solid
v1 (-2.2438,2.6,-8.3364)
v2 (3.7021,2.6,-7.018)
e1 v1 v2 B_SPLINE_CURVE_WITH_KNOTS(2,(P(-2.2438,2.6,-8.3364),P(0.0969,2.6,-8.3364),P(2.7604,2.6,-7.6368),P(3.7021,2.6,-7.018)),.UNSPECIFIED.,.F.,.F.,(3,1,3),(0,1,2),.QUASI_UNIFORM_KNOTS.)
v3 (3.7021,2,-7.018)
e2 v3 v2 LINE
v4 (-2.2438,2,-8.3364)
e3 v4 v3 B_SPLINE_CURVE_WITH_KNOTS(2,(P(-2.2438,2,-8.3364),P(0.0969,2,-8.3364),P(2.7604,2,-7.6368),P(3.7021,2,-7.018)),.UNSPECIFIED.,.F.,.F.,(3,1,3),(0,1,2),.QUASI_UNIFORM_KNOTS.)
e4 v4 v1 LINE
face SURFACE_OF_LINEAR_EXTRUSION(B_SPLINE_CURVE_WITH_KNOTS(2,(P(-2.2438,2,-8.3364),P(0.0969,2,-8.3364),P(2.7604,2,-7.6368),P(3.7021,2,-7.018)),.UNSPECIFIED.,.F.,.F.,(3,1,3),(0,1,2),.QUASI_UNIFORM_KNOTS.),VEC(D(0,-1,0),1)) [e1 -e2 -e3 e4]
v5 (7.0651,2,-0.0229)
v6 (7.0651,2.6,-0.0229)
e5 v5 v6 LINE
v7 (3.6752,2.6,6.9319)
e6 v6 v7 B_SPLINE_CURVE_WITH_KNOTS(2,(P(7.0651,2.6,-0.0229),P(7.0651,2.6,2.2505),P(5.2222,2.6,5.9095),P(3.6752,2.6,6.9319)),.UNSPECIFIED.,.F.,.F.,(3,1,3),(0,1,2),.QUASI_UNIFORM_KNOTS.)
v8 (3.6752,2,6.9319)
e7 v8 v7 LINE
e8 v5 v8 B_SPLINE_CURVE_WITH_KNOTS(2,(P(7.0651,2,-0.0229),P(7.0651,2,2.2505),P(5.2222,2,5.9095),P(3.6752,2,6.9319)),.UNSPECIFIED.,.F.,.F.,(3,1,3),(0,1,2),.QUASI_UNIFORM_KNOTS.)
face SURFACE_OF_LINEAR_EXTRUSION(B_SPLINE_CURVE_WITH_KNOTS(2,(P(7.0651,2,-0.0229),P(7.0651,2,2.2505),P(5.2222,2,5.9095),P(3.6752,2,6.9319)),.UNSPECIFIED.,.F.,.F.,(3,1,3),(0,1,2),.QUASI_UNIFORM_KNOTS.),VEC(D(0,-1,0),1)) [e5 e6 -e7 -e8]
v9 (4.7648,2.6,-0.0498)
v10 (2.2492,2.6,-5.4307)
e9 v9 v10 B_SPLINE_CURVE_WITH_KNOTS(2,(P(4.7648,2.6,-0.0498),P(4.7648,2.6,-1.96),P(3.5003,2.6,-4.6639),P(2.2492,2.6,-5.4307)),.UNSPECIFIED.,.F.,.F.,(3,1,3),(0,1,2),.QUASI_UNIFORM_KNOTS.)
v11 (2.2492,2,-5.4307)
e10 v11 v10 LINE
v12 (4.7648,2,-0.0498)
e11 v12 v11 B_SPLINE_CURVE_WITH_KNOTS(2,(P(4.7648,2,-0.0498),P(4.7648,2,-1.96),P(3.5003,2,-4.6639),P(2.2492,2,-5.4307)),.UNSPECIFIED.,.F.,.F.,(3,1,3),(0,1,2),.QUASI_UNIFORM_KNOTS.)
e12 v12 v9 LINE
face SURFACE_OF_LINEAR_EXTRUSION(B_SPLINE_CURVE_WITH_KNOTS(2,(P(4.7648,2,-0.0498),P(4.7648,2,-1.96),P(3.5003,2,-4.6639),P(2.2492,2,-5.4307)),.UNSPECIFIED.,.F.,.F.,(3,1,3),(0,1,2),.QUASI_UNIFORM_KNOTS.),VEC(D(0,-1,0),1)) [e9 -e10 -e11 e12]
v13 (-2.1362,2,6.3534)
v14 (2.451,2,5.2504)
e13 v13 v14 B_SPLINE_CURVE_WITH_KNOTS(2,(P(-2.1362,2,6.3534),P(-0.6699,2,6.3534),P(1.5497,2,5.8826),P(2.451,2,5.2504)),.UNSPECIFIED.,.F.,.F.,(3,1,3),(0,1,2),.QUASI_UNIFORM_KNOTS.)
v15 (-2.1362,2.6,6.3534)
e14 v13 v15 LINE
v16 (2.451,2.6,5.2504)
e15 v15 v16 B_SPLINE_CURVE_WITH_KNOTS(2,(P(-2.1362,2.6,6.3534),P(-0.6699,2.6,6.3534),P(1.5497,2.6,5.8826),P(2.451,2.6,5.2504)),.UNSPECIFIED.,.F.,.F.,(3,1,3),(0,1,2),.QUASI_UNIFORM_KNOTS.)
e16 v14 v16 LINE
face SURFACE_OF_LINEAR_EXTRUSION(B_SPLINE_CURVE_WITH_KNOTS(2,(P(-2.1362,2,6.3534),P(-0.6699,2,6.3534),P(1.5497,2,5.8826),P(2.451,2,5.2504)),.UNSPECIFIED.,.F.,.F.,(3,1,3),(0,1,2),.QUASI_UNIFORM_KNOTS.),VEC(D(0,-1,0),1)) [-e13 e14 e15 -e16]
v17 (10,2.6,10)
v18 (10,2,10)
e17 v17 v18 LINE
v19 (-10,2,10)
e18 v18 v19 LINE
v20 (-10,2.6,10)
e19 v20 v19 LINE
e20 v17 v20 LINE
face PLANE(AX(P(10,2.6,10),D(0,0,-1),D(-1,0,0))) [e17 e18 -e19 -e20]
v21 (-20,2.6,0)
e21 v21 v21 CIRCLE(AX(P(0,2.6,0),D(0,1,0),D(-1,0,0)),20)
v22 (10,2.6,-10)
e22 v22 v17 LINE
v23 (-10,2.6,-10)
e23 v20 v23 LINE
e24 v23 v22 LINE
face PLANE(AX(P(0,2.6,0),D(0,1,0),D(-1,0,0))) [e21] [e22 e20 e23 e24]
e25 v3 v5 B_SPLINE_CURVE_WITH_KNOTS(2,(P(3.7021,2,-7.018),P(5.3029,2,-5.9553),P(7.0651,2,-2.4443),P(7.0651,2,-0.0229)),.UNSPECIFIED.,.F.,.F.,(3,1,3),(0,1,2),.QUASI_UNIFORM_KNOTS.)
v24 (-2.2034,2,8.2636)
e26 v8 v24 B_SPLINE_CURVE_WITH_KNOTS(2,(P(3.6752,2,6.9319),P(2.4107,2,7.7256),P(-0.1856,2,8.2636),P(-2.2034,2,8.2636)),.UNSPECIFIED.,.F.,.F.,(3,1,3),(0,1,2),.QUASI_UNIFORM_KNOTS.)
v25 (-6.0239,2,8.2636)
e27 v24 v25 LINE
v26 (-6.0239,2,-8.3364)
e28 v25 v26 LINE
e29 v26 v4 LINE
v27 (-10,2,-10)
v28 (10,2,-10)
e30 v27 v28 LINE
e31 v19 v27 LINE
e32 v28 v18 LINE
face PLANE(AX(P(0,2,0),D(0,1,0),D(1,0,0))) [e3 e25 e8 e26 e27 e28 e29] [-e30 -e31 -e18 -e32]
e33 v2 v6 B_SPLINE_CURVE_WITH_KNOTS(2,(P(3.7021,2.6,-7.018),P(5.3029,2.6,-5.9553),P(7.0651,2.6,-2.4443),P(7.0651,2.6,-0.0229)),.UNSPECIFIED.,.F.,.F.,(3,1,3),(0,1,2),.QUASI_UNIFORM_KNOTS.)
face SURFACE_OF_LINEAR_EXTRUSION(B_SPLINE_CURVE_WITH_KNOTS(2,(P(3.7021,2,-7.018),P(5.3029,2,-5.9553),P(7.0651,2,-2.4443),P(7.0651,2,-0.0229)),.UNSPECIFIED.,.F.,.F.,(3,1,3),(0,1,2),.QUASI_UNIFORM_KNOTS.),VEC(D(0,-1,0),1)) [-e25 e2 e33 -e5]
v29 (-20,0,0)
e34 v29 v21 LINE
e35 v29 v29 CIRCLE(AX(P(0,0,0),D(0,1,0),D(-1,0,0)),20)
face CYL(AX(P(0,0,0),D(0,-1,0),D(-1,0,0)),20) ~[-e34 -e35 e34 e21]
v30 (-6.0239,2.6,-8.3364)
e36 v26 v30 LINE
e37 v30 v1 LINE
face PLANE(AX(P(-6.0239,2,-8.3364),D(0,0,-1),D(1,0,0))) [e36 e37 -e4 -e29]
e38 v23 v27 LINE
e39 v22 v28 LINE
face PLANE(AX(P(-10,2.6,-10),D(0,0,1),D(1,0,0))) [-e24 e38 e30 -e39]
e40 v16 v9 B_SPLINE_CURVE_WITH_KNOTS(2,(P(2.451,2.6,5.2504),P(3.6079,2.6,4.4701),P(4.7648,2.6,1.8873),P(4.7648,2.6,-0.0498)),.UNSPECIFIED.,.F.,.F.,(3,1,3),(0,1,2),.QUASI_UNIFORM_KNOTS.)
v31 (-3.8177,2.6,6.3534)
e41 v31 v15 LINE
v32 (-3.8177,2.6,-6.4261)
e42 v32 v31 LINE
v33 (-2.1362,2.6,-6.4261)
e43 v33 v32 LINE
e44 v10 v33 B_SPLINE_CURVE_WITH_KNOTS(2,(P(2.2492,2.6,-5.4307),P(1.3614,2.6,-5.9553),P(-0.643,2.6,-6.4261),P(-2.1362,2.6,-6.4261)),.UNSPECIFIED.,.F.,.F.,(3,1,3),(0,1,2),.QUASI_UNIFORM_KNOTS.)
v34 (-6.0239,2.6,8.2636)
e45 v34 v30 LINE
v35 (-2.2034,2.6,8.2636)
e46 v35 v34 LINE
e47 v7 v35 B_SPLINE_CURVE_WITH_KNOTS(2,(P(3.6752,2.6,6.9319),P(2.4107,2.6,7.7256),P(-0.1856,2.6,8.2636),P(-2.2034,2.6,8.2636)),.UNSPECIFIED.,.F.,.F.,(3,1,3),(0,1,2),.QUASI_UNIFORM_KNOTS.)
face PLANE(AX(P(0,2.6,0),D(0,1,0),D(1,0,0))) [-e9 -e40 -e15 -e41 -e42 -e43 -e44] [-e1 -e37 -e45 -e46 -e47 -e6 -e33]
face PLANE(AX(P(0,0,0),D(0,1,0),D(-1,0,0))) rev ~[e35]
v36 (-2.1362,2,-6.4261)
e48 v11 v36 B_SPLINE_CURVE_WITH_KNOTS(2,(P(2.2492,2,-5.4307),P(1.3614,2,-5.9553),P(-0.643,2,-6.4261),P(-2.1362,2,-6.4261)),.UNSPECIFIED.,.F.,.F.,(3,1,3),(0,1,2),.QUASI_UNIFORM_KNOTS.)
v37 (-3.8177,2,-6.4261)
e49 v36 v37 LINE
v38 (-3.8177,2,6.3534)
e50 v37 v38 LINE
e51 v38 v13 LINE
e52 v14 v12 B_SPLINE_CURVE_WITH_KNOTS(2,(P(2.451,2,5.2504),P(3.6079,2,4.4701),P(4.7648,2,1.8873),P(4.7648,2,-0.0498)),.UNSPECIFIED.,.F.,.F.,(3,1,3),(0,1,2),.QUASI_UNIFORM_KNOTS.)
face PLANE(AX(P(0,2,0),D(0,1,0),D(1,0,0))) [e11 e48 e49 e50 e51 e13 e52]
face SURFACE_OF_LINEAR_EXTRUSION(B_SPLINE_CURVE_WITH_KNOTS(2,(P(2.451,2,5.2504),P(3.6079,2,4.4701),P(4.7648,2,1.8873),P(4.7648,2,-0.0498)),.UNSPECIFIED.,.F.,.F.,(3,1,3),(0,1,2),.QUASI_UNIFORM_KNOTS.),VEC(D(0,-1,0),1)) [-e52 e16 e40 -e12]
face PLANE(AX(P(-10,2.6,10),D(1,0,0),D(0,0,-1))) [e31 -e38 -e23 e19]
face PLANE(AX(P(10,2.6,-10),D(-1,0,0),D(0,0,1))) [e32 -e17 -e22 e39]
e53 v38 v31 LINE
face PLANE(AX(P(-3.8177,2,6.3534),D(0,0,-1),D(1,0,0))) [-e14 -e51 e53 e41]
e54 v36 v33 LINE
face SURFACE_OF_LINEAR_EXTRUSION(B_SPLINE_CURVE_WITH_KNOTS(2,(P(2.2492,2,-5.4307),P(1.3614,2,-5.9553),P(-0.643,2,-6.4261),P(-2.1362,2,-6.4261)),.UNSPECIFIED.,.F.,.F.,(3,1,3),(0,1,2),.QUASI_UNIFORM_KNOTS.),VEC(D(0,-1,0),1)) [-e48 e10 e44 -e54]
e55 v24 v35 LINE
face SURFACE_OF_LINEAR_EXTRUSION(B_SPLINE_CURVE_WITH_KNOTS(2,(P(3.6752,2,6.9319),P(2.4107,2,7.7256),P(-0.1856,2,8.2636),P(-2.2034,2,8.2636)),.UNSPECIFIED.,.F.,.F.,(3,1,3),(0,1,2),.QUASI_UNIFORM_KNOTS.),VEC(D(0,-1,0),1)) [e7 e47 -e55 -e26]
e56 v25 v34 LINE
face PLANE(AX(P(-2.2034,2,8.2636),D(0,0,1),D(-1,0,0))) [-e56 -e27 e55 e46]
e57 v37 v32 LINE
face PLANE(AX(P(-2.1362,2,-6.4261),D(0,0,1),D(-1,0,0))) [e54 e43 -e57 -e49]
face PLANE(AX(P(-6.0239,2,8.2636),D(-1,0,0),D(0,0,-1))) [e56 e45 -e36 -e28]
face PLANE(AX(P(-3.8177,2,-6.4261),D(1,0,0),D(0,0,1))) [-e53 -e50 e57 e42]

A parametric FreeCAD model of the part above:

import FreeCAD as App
import Part
import Sketcher

V = App.Vector
Q = App.Units.Quantity


def add_polygon(sketch, points):
    """Adds a closed chain of lines whose ends are joined by coincident constraints."""
    first, n = sketch.GeometryCount, len(points)
    for a, b in zip(points, points[1:] + points[:1]):
        sketch.addGeometry(Part.LineSegment(App.Vector(*a, 0), App.Vector(*b, 0)), False)
    for i in range(n):
        sketch.addConstraint(Sketcher.Constraint("Coincident", first + i, 2, first + (i + 1) % n, 1))

doc = App.newDocument("Part")
body = doc.addObject("PartDesign::Body", "Body")

sketch1 = doc.addObject("Sketcher::SketchObject", "Sketch")
body.addObject(sketch1)
sketch1.AttachmentSupport = (doc.XZ_Plane, [""])
sketch1.MapMode = "FlatFace"
sketch1.addGeometry(Part.Circle(V(0, 0, 0), V(0, 0, 1), 20), False)
sketch1.addConstraint([
    Sketcher.Constraint("Coincident", 0, 3, -1, 1),
    Sketcher.Constraint("Diameter", 0, Q("40 mm")),
])
pad1 = doc.addObject("PartDesign::Pad", "Pad")
body.addObject(pad1)
pad1.Profile = sketch1
pad1.Length = 2.6
pad1.Reversed = True

sketch2 = doc.addObject("Sketcher::SketchObject", "Sketch001")
body.addObject(sketch2)
sketch2.AttachmentSupport = (doc.XZ_Plane, [""])
sketch2.MapMode = "FlatFace"
sketch2.AttachmentOffset = App.Placement(V(0, 0, -2.6), App.Rotation())
add_polygon(sketch2, [(-10, -10), (-10, 10), (10, 10), (10, -10)])
sketch2.addConstraint([
    Sketcher.Constraint("Vertical", 0),
    Sketcher.Constraint("Horizontal", 1),
    Sketcher.Constraint("Vertical", 2),
    Sketcher.Constraint("Horizontal", 3),
    Sketcher.Constraint("Symmetric", 0, 2, 2, 2, -1, 1),
    Sketcher.Constraint("Equal", 3, 0),
    Sketcher.Constraint("DistanceX", 1, 1, 1, 2, Q("20 mm")),
])
pocket1 = doc.addObject("PartDesign::Pocket", "Pocket")
body.addObject(pocket1)
pocket1.Profile = sketch2
pocket1.Length = 0.6
pocket1.Reversed = True

sketch3 = doc.addObject("Sketcher::SketchObject", "Sketch002")
body.addObject(sketch3)
sketch3.AttachmentSupport = (doc.XZ_Plane, [""])
sketch3.MapMode = "FlatFace"
sketch3.AttachmentOffset = App.Placement(V(0, 0, -2), App.Rotation())
sketch3.addGeometry([
    Part.BSplineCurve([V(7.0651, -0.0229, 0), V(7.0651, 2.2505, 0), V(5.2222, 5.9095, 0), V(3.6752, 6.9319, 0)], [3, 1, 3], [0, 1, 2], False, 2, [1, 1, 1, 1], False),
    Part.BSplineCurve([V(3.7021, -7.018, 0), V(5.3029, -5.9553, 0), V(7.0651, -2.4443, 0), V(7.0651, -0.0229, 0)], [3, 1, 3], [0, 1, 2], False, 2, [1, 1, 1, 1], False),
    Part.BSplineCurve([V(-2.2438, -8.3364, 0), V(0.0969, -8.3364, 0), V(2.7604, -7.6368, 0), V(3.7021, -7.018, 0)], [3, 1, 3], [0, 1, 2], False, 2, [1, 1, 1, 1], False),
    Part.LineSegment(V(-2.2438, -8.3364, 0), V(-6.0239, -8.3364, 0)),
    Part.LineSegment(V(-6.0239, -8.3364, 0), V(-6.0239, 8.2636, 0)),
    Part.LineSegment(V(-6.0239, 8.2636, 0), V(-2.2034, 8.2636, 0)),
    Part.BSplineCurve([V(3.6752, 6.9319, 0), V(2.4107, 7.7256, 0), V(-0.1856, 8.2636, 0), V(-2.2034, 8.2636, 0)], [3, 1, 3], [0, 1, 2], False, 2, [1, 1, 1, 1], False),
    Part.BSplineCurve([V(4.7648, -0.0498, 0), V(4.7648, -1.96, 0), V(3.5003, -4.6639, 0), V(2.2492, -5.4307, 0)], [3, 1, 3], [0, 1, 2], False, 2, [1, 1, 1, 1], False),
    Part.BSplineCurve([V(2.451, 5.2504, 0), V(3.6079, 4.4701, 0), V(4.7648, 1.8873, 0), V(4.7648, -0.0498, 0)], [3, 1, 3], [0, 1, 2], False, 2, [1, 1, 1, 1], False),
    Part.BSplineCurve([V(-2.1362, 6.3534, 0), V(-0.6699, 6.3534, 0), V(1.5497, 5.8826, 0), V(2.451, 5.2504, 0)], [3, 1, 3], [0, 1, 2], False, 2, [1, 1, 1, 1], False),
    Part.LineSegment(V(-2.1362, 6.3534, 0), V(-3.8177, 6.3534, 0)),
    Part.LineSegment(V(-3.8177, 6.3534, 0), V(-3.8177, -6.4261, 0)),
    Part.LineSegment(V(-3.8177, -6.4261, 0), V(-2.1362, -6.4261, 0)),
    Part.BSplineCurve([V(2.2492, -5.4307, 0), V(1.3614, -5.9553, 0), V(-0.643, -6.4261, 0), V(-2.1362, -6.4261, 0)], [3, 1, 3], [0, 1, 2], False, 2, [1, 1, 1, 1], False),
], False)
sketch3.addConstraint([
    Sketcher.Constraint("Block", 0),
    Sketcher.Constraint("Block", 1),
    Sketcher.Constraint("Block", 2),
    Sketcher.Constraint("Block", 6),
    Sketcher.Constraint("Block", 7),
    Sketcher.Constraint("Block", 8),
    Sketcher.Constraint("Block", 9),
    Sketcher.Constraint("Block", 13),
    Sketcher.Constraint("Coincident", 2, 1, 3, 1),
    Sketcher.Constraint("Coincident", 3, 2, 4, 1),
    Sketcher.Constraint("Coincident", 4, 2, 5, 1),
    Sketcher.Constraint("Coincident", 5, 2, 6, 2),
    Sketcher.Constraint("Coincident", 9, 1, 10, 1),
    Sketcher.Constraint("Coincident", 10, 2, 11, 1),
    Sketcher.Constraint("Coincident", 11, 2, 12, 1),
    Sketcher.Constraint("Coincident", 12, 2, 13, 2),
    Sketcher.Constraint("Horizontal", 3),
    Sketcher.Constraint("Vertical", 4),
    Sketcher.Constraint("Horizontal", 5),
    Sketcher.Constraint("Horizontal", 10),
    Sketcher.Constraint("Vertical", 11),
    Sketcher.Constraint("Horizontal", 12),
    Sketcher.Constraint("DistanceX", 3, 2, 3, 1, Q("3.78 mm")),
    Sketcher.Constraint("DistanceX", 10, 2, 10, 1, Q("1.6815 mm")),
])
pad2 = doc.addObject("PartDesign::Pad", "Pad001")
body.addObject(pad2)
pad2.Profile = sketch3
pad2.Length = 0.6
pad2.Reversed = True

doc.recompute()
